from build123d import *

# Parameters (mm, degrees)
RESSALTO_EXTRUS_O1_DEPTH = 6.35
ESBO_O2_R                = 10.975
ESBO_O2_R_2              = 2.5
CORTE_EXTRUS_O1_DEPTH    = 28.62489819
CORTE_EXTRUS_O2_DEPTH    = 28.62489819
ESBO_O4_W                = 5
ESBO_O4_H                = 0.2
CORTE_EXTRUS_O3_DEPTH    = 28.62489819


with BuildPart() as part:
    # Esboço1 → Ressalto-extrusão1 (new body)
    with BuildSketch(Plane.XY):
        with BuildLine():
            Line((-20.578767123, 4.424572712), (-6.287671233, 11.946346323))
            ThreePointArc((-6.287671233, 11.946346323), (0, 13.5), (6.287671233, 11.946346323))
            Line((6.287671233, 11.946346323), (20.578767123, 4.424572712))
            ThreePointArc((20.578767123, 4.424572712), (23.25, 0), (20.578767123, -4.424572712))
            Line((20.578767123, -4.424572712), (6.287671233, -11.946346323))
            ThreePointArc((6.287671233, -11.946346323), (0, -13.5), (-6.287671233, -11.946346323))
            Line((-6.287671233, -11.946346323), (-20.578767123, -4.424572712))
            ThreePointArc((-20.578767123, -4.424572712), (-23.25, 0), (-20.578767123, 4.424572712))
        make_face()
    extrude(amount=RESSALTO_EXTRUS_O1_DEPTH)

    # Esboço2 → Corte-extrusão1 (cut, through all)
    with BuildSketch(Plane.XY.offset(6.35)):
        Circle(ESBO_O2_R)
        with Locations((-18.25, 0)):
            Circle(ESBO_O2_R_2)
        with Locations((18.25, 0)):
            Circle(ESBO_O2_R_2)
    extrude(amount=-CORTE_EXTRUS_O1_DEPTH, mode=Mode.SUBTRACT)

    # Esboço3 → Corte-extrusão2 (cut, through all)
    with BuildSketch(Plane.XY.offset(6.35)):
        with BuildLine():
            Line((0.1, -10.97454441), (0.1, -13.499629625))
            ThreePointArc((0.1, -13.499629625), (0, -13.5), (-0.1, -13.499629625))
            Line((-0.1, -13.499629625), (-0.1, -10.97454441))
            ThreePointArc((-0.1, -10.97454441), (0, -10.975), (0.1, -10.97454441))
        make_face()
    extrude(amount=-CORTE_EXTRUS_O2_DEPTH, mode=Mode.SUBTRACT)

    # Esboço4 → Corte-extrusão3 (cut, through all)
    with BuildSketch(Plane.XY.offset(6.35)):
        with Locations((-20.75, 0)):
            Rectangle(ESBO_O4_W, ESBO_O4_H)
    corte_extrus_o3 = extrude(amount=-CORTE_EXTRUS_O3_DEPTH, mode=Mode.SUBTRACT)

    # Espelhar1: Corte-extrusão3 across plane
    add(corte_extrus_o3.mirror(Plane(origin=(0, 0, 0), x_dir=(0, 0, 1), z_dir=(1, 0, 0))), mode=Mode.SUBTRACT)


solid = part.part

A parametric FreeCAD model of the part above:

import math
import FreeCAD as App
import Part
import Sketcher
from FreeCAD import Vector
Q = App.Units.Quantity


def add_polygon(sketch, points):
    """Adds a closed chain of lines whose ends are joined by coincident constraints."""
    first, n = sketch.GeometryCount, len(points)
    for a, b in zip(points, points[1:] + points[:1]):
        sketch.addGeometry(Part.LineSegment(App.Vector(*a, 0), App.Vector(*b, 0)), False)
    for i in range(n):
        sketch.addConstraint(Sketcher.Constraint("Coincident", first + i, 2, first + (i + 1) % n, 1))

doc = App.newDocument("Part")
body = doc.addObject("PartDesign::Body", "Body")

sketch1 = body.newObject("Sketcher::SketchObject", "Sketch")
sketch1.AttachmentSupport = (doc.getObject("XY_Plane"), [""])
sketch1.MapMode = "FlatFace"
sketch1.addGeometry([
    Part.LineSegment(Vector(-6.3, 11.9, 0), Vector(-20.6, 4.4, 0)),
    Part.ArcOfCircle(Part.Circle(Vector(-18.3, 0, 0), Vector(0, 0, 1), 5), math.radians(118), math.radians(242)),
    Part.LineSegment(Vector(-20.6, -4.4, 0), Vector(-6.3, -11.9, 0)),
    Part.ArcOfCircle(Part.Circle(Vector(0, 0, 0), Vector(0, 0, 1), 13.5), math.radians(-118), math.radians(-62)),
    Part.LineSegment(Vector(6.3, -11.9, 0), Vector(20.6, -4.4, 0)),
    Part.ArcOfCircle(Part.Circle(Vector(18.3, 0, 0), Vector(0, 0, 1), 5), math.radians(-62), math.radians(62)),
    Part.LineSegment(Vector(20.6, 4.4, 0), Vector(6.3, 11.9, 0)),
    Part.ArcOfCircle(Part.Circle(Vector(0, 0, 0), Vector(0, 0, 1), 13.5), math.radians(62), math.radians(118)),
], False)
sketch1.addConstraint([
    Sketcher.Constraint("Tangent", 0, 2, 1, 1),
    Sketcher.Constraint("Tangent", 1, 2, 2, 1),
    Sketcher.Constraint("Tangent", 2, 2, 3, 1),
    Sketcher.Constraint("Tangent", 3, 2, 4, 1),
    Sketcher.Constraint("Tangent", 4, 2, 5, 1),
    Sketcher.Constraint("Tangent", 5, 2, 6, 1),
    Sketcher.Constraint("Tangent", 6, 2, 7, 1),
    Sketcher.Constraint("Tangent", 7, 2, 0, 1),
    Sketcher.Constraint("Coincident", 3, 3, -1, 1),
    Sketcher.Constraint("Coincident", 7, 3, -1, 1),
    Sketcher.Constraint("Equal", 1, 5),
    Sketcher.Constraint("Equal", 3, 7),
    Sketcher.Constraint("Symmetric", 1, 3, 5, 3, -1, 1),
    Sketcher.Constraint("PointOnObject", 1, 3, -1),
    Sketcher.Constraint("Radius", 1, Q("5 mm")),
    Sketcher.Constraint("Radius", 3, Q("13.5 mm")),
    Sketcher.Constraint("DistanceX", 1, 3, 5, 3, Q("36.5 mm")),
])
pad1 = body.newObject("PartDesign::Pad", "Pad")
pad1.Profile = sketch1
pad1.Length = 6.35

sketch2 = body.newObject("Sketcher::SketchObject", "Sketch001")
sketch2.AttachmentSupport = (doc.getObject("XY_Plane"), [""])
sketch2.MapMode = "FlatFace"
sketch2.AttachmentOffset = App.Placement(Vector(0, 0, 6.35), App.Rotation())
sketch2.addGeometry([
    Part.Circle(Vector(0, 0, 0), Vector(0, 0, 1), 11),
    Part.Circle(Vector(-18.2, 0, 0), Vector(0, 0, 1), 2.5),
    Part.Circle(Vector(18.2, 0, 0), Vector(0, 0, 1), 2.5),
], False)
sketch2.addConstraint([
    Sketcher.Constraint("Coincident", 0, 3, -1, 1),
    Sketcher.Constraint("Equal", 1, 2),
    Sketcher.Constraint("Symmetric", 1, 3, 2, 3, -1, 1),
    Sketcher.Constraint("PointOnObject", 1, 3, -1),
    Sketcher.Constraint("Diameter", 1, Q("5 mm")),
    Sketcher.Constraint("Diameter", 0, Q("21.95 mm")),
    Sketcher.Constraint("DistanceX", 1, 3, 2, 3, Q("36.5 mm")),
])
pocket1 = body.newObject("PartDesign::Pocket", "Pocket")
pocket1.Profile = sketch2
pocket1.Type = "ThroughAll"

sketch3 = body.newObject("Sketcher::SketchObject", "Sketch002")
sketch3.AttachmentSupport = (doc.getObject("XY_Plane"), [""])
sketch3.MapMode = "FlatFace"
sketch3.AttachmentOffset = App.Placement(Vector(0, 0, 6.35), App.Rotation())
sketch3.addGeometry([
    Part.LineSegment(Vector(0.1, -13.5, 0), Vector(0.1, -10.97, 0)),
    Part.ArcOfCircle(Part.Circle(Vector(0, 0, 0), Vector(0, 0, 1), 10.98), math.radians(-90.52), math.radians(-89.48)),
    Part.LineSegment(Vector(-0.1, -10.97, 0), Vector(-0.1, -13.5, 0)),
    Part.ArcOfCircle(Part.Circle(Vector(0, 0, 0), Vector(0, 0, 1), 13.5), math.radians(-90.42), math.radians(-89.58)),
], False)
sketch3.addConstraint([
    Sketcher.Constraint("Coincident", 0, 2, 1, 2),
    Sketcher.Constraint("Coincident", 1, 1, 2, 1),
    Sketcher.Constraint("Coincident", 2, 2, 3, 1),
    Sketcher.Constraint("Coincident", 3, 2, 0, 1),
    Sketcher.Constraint("Vertical", 0),
    Sketcher.Constraint("Vertical", 2),
    Sketcher.Constraint("Coincident", 1, 3, -1, 1),
    Sketcher.Constraint("Coincident", 3, 3, 1, 3),
    Sketcher.Constraint("Horizontal", 0, 2, 1, 1),
    Sketcher.Constraint("DistanceX", -1, 1, 0, 2, Q("0.1 mm")),
    Sketcher.Constraint("Radius", 1, Q("10.975008 mm")),
    Sketcher.Constraint("Radius", 3, Q("13.500016 mm")),
])
pocket2 = body.newObject("PartDesign::Pocket", "Pocket001")
pocket2.Profile = sketch3
pocket2.Type = "ThroughAll"

sketch4 = body.newObject("Sketcher::SketchObject", "Sketch003")
sketch4.AttachmentSupport = (doc.getObject("XY_Plane"), [""])
sketch4.MapMode = "FlatFace"
sketch4.AttachmentOffset = App.Placement(Vector(0, 0, 6.35), App.Rotation())
add_polygon(sketch4, [(-23.25, 0.1), (-23.25, -0.1), (-18.25, -0.1), (-18.25, 0.1)])
sketch4.addConstraint([
    Sketcher.Constraint("Vertical", 0),
    Sketcher.Constraint("Horizontal", 1),
    Sketcher.Constraint("Vertical", 2),
    Sketcher.Constraint("Horizontal", 3),
    Sketcher.Constraint("DistanceX", 1, 1, 1, 2, Q("5 mm")),
    Sketcher.Constraint("DistanceY", 0, 2, 0, 1, Q("0.2 mm")),
    Sketcher.Constraint("DistanceY", 0, 2, -1, 1, Q("0.1 mm")),
    Sketcher.Constraint("DistanceX", 0, 2, -1, 1, Q("23.25 mm")),
])
pocket3 = body.newObject("PartDesign::Pocket", "Pocket002")
pocket3.Profile = sketch4
pocket3.Type = "ThroughAll"
doc.recompute()

mirrored = body.newObject("PartDesign::Mirrored", "Mirrored")
mirrored.Originals = [pocket3]
mirrored.MirrorPlane = (doc.getObject("YZ_Plane"), [""])
body.Tip = mirrored

doc.recompute()
